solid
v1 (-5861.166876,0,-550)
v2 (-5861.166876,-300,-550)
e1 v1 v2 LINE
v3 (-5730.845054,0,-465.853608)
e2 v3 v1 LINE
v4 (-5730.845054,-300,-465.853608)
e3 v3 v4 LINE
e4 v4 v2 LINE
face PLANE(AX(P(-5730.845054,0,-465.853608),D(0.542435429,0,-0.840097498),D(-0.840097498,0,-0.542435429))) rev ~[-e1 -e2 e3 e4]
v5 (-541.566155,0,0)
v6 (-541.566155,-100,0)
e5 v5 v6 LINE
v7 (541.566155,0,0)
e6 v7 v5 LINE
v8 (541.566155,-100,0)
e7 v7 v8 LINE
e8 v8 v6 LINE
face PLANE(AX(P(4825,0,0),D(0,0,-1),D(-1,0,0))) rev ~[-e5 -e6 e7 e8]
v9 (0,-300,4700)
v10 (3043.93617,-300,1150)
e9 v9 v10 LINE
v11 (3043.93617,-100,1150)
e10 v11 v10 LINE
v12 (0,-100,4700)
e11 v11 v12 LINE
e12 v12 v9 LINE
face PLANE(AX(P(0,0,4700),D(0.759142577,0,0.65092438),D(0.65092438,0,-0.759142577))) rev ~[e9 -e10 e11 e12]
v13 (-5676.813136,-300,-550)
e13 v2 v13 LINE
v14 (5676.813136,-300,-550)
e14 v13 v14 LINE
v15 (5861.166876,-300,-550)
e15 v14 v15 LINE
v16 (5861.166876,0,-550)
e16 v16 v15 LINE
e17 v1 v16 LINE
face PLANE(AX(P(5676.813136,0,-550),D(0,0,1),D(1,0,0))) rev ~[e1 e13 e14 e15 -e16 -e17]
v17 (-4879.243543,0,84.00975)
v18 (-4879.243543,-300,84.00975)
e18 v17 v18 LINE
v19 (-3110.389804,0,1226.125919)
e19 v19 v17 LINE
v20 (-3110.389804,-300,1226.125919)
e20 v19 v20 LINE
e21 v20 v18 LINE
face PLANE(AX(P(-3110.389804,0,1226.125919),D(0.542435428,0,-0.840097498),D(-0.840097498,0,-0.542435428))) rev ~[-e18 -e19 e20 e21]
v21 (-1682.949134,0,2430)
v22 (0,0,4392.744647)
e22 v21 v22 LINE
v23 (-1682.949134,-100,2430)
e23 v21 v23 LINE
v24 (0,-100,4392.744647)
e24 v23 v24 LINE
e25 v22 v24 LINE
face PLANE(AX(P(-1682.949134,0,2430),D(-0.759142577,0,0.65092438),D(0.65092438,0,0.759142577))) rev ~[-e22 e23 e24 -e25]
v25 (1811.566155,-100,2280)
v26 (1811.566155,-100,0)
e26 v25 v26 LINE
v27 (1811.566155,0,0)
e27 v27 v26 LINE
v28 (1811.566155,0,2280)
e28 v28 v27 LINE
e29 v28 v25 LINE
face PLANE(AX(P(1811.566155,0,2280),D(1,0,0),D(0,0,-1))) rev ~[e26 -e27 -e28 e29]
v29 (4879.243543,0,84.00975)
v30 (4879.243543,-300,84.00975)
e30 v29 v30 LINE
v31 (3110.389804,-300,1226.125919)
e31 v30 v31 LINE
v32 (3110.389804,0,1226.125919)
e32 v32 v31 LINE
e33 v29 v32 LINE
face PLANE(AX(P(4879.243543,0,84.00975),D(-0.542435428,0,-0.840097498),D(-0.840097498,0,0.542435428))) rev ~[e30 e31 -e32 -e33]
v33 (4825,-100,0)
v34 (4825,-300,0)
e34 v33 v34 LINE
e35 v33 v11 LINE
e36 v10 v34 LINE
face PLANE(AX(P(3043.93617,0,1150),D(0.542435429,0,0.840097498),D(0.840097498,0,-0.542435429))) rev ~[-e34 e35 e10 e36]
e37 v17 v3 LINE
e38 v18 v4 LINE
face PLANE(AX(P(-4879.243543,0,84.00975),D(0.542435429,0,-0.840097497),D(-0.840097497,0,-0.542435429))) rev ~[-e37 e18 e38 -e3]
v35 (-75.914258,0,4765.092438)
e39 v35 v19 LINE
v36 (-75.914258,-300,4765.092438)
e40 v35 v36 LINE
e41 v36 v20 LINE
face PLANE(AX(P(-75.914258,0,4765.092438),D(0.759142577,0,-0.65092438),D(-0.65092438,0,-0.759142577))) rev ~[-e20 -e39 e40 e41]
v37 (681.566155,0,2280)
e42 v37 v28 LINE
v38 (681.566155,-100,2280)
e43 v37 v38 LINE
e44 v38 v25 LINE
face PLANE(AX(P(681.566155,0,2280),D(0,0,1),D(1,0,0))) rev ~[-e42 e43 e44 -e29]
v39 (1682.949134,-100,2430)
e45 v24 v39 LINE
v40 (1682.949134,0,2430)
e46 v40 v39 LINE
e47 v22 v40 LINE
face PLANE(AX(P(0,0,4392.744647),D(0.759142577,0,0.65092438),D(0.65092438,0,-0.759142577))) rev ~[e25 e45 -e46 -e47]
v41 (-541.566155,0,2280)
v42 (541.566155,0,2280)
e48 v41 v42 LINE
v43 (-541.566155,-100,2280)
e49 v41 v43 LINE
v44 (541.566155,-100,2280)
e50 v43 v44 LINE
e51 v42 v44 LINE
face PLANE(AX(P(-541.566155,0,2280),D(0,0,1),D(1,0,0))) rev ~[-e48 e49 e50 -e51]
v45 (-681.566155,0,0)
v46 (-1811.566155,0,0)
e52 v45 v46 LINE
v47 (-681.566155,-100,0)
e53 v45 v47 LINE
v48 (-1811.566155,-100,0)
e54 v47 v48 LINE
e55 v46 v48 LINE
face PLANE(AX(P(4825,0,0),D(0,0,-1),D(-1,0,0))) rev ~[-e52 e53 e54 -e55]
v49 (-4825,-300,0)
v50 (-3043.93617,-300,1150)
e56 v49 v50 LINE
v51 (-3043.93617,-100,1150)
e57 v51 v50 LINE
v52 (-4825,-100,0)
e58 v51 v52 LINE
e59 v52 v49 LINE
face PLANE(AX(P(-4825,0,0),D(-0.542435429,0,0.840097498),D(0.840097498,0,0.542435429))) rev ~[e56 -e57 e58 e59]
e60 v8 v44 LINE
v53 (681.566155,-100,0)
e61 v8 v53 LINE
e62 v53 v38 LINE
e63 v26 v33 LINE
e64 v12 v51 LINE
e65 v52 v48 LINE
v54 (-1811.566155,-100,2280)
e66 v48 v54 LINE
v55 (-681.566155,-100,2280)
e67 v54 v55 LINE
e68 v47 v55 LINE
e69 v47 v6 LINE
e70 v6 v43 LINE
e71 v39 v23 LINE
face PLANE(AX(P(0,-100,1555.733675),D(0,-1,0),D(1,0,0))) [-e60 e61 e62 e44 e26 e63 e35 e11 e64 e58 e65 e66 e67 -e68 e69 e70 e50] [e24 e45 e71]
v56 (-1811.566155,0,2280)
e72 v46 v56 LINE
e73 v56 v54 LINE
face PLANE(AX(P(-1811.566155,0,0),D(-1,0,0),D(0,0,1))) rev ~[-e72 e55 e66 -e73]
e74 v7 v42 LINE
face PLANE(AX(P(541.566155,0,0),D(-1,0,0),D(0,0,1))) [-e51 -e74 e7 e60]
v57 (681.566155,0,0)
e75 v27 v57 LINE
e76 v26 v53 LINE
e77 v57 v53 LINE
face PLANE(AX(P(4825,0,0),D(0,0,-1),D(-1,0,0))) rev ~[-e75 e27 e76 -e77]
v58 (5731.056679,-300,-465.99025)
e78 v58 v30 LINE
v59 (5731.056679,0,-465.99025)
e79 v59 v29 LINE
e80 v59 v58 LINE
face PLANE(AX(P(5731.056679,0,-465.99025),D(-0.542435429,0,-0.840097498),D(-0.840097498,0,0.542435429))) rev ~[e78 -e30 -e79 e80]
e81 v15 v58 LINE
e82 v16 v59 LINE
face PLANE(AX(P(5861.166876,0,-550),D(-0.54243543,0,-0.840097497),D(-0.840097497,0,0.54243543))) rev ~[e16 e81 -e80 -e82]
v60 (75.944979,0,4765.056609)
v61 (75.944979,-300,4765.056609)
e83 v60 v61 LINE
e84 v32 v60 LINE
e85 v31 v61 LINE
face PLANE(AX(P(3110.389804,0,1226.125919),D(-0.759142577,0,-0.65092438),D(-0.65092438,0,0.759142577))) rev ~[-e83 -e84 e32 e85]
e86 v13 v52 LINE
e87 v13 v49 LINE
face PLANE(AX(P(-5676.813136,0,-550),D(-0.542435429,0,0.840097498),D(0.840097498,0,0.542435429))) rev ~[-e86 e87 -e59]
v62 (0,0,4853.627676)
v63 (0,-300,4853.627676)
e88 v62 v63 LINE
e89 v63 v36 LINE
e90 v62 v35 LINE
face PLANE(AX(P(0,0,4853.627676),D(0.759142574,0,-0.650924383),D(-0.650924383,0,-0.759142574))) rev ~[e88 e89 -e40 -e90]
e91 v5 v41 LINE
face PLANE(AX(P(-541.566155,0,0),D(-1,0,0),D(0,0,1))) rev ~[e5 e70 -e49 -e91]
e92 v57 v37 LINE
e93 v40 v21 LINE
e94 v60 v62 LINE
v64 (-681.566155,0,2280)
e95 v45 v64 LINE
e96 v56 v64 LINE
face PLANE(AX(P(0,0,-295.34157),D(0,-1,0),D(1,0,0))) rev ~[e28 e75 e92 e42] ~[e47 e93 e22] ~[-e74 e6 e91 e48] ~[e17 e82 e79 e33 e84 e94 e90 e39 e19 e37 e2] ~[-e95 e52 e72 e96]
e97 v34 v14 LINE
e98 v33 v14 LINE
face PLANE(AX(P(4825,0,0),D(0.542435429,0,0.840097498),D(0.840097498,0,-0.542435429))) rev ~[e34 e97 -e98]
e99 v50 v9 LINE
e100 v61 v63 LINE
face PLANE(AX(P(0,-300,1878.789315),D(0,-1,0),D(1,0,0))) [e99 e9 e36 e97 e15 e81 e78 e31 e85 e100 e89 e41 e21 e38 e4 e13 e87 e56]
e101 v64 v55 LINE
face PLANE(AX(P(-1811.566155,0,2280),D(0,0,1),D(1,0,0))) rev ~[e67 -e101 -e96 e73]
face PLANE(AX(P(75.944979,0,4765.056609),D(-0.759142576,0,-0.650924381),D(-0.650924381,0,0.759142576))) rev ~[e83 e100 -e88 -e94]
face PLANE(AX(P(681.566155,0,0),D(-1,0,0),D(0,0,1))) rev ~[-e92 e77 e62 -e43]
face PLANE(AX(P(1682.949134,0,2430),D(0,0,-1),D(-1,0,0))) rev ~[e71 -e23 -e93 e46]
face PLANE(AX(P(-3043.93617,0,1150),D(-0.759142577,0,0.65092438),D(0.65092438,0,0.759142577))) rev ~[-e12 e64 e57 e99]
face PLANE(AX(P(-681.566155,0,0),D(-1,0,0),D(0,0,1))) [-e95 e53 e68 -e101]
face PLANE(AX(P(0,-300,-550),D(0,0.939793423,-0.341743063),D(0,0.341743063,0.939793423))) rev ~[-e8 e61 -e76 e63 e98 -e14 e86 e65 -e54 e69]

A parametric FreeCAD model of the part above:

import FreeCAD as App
import Part
import Sketcher

V = App.Vector
Q = App.Units.Quantity


def add_polygon(sketch, points):
    """Adds a closed chain of lines whose ends are joined by coincident constraints."""
    first, n = sketch.GeometryCount, len(points)
    for a, b in zip(points, points[1:] + points[:1]):
        sketch.addGeometry(Part.LineSegment(App.Vector(*a, 0), App.Vector(*b, 0)), False)
    for i in range(n):
        sketch.addConstraint(Sketcher.Constraint("Coincident", first + i, 2, first + (i + 1) % n, 1))

doc = App.newDocument("Part")
body = doc.addObject("PartDesign::Body", "Body")

# Sketch on XZ plane
sketch1 = body.newObject("Sketcher::SketchObject", "Sketch")
sketch1.AttachmentSupport = (doc.getObject("XZ_Plane"), [""])
sketch1.MapMode = "FlatFace"
add_polygon(sketch1, [(-4825, 0), (-1812, 0), (-1812, 2280), (-682, 2280), (-682, 0), (-542, 0), (-542, 2280), (542, 2280), (542, 0), (682, 0), (682, 2280), (1812, 2280), (1812, 0), (4825, 0), (3044, 1150), (0, 4700), (-3044, 1150)])  # lines 0-16
add_polygon(sketch1, [(0, 4393), (1683, 2430), (-1683, 2430)])  # lines 17-19
sketch1.addConstraint([
    Sketcher.Constraint("Horizontal", 0),
    Sketcher.Constraint("Vertical", 1),
    Sketcher.Constraint("Horizontal", 2),
    Sketcher.Constraint("Vertical", 3),
    Sketcher.Constraint("Horizontal", 4),
    Sketcher.Constraint("Vertical", 5),
    Sketcher.Constraint("Horizontal", 6),
    Sketcher.Constraint("Vertical", 7),
    Sketcher.Constraint("Horizontal", 8),
    Sketcher.Constraint("Vertical", 9),
    Sketcher.Constraint("Horizontal", 10),
    Sketcher.Constraint("Vertical", 11),
    Sketcher.Constraint("Horizontal", 12),
    Sketcher.Constraint("Horizontal", 18),
    Sketcher.Constraint("Symmetric", 4, 2, 7, 2, -1, 1),
    Sketcher.Constraint("Symmetric", 0, 2, 11, 2, -1, 1),
    Sketcher.Constraint("Symmetric", 3, 2, 8, 2, -2),
    Sketcher.Constraint("Symmetric", 13, 2, 15, 2, -2),
    Sketcher.Constraint("Symmetric", 12, 2, 16, 2, -2),
    Sketcher.Constraint("PointOnObject", 14, 2, -2),
    Sketcher.Constraint("PointOnObject", 19, 2, -2),
    Sketcher.Constraint("Parallel", 14, 17),
    Sketcher.Constraint("Parallel", 15, 19),
    Sketcher.Constraint("Horizontal", 2, 2, 5, 2),
    Sketcher.Constraint("Horizontal", 6, 2, 9, 2),
    Sketcher.Constraint("DistanceX", 2, 1, 2, 2, Q("1130 mm")),
    Sketcher.Constraint("DistanceX", 4, 1, 4, 2, Q("140 mm")),
    Sketcher.Constraint("DistanceY", 1, 1, 1, 2, Q("2280 mm")),
    Sketcher.Constraint("DistanceX", -1, 1, 12, 2, Q("4825 mm")),
    Sketcher.Constraint("DistanceY", -1, 1, 13, 2, Q("1150 mm")),
    Sketcher.Constraint("DistanceY", -1, 1, 14, 2, Q("4700 mm")),
    Sketcher.Constraint("DistanceY", -1, 1, 17, 2, Q("2430 mm")),
    Sketcher.Constraint("DistanceX", 6, 1, 6, 2, Q("1083.13231 mm")),
    Sketcher.Constraint("Distance", 13, Q("2120.06801 mm")),
    Sketcher.Constraint("Distance", 17, Q("2585.47565 mm")),
])
pad1 = body.newObject("PartDesign::Pad", "Pad")
pad1.Profile = sketch1
pad1.Length = 100

# Sketch on XZ plane
sketch2 = body.newObject("Sketcher::SketchObject", "Sketch001")
sketch2.AttachmentSupport = (doc.getObject("XZ_Plane"), [""])
sketch2.MapMode = "FlatFace"
add_polygon(sketch2, [(-4825, 0), (-5677, -550), (5677, -550), (4825, 0)])  # lines 0-3
sketch2.addConstraint([
    Sketcher.Constraint("Horizontal", 1),
    Sketcher.Constraint("Horizontal", 3),
    Sketcher.Constraint("Symmetric", 2, 2, 3, 2, -1, 1),
    Sketcher.Constraint("Equal", 0, 2),
    Sketcher.Constraint("DistanceX", 3, 2, 3, 1, Q("9650 mm")),
    Sketcher.Constraint("DistanceY", 0, 2, -1, 1, Q("550 mm")),
    Sketcher.Constraint("DistanceX", 1, 1, 1, 2, Q("11353.626272 mm")),
])
pad2 = body.newObject("PartDesign::Pad", "Pad001")
pad2.Profile = sketch2
pad2.Length = 300

# Sketch on YZ plane
sketch3 = body.newObject("Sketcher::SketchObject", "Sketch002")
sketch3.AttachmentSupport = (doc.getObject("YZ_Plane"), [""])
sketch3.MapMode = "FlatFace"
add_polygon(sketch3, [(-100, 0), (-300, 0), (-300, -550)])  # lines 0-2
sketch3.addConstraint([
    Sketcher.Constraint("Horizontal", 0),
    Sketcher.Constraint("Vertical", 1),
    Sketcher.Constraint("PointOnObject", 0, 2, -1),
    Sketcher.Constraint("DistanceX", 0, 2, 0, 1, Q("200 mm")),
    Sketcher.Constraint("DistanceY", 1, 2, 1, 1, Q("550 mm")),
    Sketcher.Constraint("DistanceX", 0, 2, -1, 1, Q("300 mm")),
])
pocket1 = body.newObject("PartDesign::Pocket", "Pocket")
pocket1.Profile = sketch3
pocket1.Length = 13000
pocket1.Midplane = True

# Sketch on XZ plane
sketch4 = body.newObject("Sketcher::SketchObject", "Sketch003")
sketch4.AttachmentSupport = (doc.getObject("XZ_Plane"), [""])
sketch4.MapMode = "FlatFace"
add_polygon(sketch4, [(-3044, 1150), (0, 4700), (3044, 1150), (4825, 0), (5677, -550), (5861, -550), (5731, -466), (4879, 84), (3110, 1226), (76, 4765), (0, 4854), (-76, 4765), (-3110, 1226), (-4879, 84), (-5731, -466), (-5861, -550), (-5677, -550), (-4825, 0)])  # lines 0-17
sketch4.addConstraint([
    Sketcher.Constraint("Horizontal", 4),
    Sketcher.Constraint("Horizontal", 15),
    Sketcher.Constraint("Symmetric", 2, 2, 16, 2, -1, 1),
    Sketcher.Constraint("Symmetric", 7, 2, 11, 2, -2),
    Sketcher.Constraint("Symmetric", 6, 2, 12, 2, -2),
    Sketcher.Constraint("Symmetric", 4, 2, 14, 2, -2),
    Sketcher.Constraint("Symmetric", 1, 2, 17, 2, -2),
    Sketcher.Constraint("PointOnObject", 0, 2, -2),
    Sketcher.Constraint("PointOnObject", 2, 2, -1),
    Sketcher.Constraint("PointOnObject", 9, 2, -2),
    Sketcher.Constraint("Parallel", 2, 3),
    Sketcher.Constraint("Parallel", 3, 5),
    Sketcher.Constraint("Parallel", 5, 6),
    Sketcher.Constraint("Parallel", 6, 7),
    Sketcher.Constraint("Parallel", 1, 8),
    Sketcher.Constraint("Parallel", 8, 9),
    Sketcher.Constraint("Parallel", 0, 10),
    Sketcher.Constraint("Parallel", 12, 13),
    Sketcher.Constraint("Parallel", 14, 16),
    Sketcher.Constraint("Equal", 3, 6),
    Sketcher.Constraint("DistanceY", -1, 1, 0, 2, Q("4700 mm")),
    Sketcher.Constraint("DistanceY", -1, 1, 1, 2, Q("1150 mm")),
    Sketcher.Constraint("DistanceX", -1, 1, 2, 2, Q("4825 mm")),
    Sketcher.Constraint("DistanceY", 3, 2, -1, 1, Q("550 mm")),
    Sketcher.Constraint("DistanceX", 4, 1, 4, 2, Q("184.35374 mm")),
    Sketcher.Constraint("Distance", 0, Q("4676.328411 mm")),
    Sketcher.Constraint("Distance", 8, Q("4661.747079 mm")),
    Sketcher.Constraint("Distance", 10, Q("116.62531 mm")),
    Sketcher.Constraint("Distance", 14, Q("155.127021 mm")),
    Sketcher.Constraint("DistanceX", -1, 1, 5, 2, Q("5731.056679 mm")),
    Sketcher.Constraint("DistanceY", -1, 1, 7, 2, Q("1226.125919 mm")),
])
pad3 = body.newObject("PartDesign::Pad", "Pad002")
pad3.Profile = sketch4
pad3.Length = 300

doc.recompute()
